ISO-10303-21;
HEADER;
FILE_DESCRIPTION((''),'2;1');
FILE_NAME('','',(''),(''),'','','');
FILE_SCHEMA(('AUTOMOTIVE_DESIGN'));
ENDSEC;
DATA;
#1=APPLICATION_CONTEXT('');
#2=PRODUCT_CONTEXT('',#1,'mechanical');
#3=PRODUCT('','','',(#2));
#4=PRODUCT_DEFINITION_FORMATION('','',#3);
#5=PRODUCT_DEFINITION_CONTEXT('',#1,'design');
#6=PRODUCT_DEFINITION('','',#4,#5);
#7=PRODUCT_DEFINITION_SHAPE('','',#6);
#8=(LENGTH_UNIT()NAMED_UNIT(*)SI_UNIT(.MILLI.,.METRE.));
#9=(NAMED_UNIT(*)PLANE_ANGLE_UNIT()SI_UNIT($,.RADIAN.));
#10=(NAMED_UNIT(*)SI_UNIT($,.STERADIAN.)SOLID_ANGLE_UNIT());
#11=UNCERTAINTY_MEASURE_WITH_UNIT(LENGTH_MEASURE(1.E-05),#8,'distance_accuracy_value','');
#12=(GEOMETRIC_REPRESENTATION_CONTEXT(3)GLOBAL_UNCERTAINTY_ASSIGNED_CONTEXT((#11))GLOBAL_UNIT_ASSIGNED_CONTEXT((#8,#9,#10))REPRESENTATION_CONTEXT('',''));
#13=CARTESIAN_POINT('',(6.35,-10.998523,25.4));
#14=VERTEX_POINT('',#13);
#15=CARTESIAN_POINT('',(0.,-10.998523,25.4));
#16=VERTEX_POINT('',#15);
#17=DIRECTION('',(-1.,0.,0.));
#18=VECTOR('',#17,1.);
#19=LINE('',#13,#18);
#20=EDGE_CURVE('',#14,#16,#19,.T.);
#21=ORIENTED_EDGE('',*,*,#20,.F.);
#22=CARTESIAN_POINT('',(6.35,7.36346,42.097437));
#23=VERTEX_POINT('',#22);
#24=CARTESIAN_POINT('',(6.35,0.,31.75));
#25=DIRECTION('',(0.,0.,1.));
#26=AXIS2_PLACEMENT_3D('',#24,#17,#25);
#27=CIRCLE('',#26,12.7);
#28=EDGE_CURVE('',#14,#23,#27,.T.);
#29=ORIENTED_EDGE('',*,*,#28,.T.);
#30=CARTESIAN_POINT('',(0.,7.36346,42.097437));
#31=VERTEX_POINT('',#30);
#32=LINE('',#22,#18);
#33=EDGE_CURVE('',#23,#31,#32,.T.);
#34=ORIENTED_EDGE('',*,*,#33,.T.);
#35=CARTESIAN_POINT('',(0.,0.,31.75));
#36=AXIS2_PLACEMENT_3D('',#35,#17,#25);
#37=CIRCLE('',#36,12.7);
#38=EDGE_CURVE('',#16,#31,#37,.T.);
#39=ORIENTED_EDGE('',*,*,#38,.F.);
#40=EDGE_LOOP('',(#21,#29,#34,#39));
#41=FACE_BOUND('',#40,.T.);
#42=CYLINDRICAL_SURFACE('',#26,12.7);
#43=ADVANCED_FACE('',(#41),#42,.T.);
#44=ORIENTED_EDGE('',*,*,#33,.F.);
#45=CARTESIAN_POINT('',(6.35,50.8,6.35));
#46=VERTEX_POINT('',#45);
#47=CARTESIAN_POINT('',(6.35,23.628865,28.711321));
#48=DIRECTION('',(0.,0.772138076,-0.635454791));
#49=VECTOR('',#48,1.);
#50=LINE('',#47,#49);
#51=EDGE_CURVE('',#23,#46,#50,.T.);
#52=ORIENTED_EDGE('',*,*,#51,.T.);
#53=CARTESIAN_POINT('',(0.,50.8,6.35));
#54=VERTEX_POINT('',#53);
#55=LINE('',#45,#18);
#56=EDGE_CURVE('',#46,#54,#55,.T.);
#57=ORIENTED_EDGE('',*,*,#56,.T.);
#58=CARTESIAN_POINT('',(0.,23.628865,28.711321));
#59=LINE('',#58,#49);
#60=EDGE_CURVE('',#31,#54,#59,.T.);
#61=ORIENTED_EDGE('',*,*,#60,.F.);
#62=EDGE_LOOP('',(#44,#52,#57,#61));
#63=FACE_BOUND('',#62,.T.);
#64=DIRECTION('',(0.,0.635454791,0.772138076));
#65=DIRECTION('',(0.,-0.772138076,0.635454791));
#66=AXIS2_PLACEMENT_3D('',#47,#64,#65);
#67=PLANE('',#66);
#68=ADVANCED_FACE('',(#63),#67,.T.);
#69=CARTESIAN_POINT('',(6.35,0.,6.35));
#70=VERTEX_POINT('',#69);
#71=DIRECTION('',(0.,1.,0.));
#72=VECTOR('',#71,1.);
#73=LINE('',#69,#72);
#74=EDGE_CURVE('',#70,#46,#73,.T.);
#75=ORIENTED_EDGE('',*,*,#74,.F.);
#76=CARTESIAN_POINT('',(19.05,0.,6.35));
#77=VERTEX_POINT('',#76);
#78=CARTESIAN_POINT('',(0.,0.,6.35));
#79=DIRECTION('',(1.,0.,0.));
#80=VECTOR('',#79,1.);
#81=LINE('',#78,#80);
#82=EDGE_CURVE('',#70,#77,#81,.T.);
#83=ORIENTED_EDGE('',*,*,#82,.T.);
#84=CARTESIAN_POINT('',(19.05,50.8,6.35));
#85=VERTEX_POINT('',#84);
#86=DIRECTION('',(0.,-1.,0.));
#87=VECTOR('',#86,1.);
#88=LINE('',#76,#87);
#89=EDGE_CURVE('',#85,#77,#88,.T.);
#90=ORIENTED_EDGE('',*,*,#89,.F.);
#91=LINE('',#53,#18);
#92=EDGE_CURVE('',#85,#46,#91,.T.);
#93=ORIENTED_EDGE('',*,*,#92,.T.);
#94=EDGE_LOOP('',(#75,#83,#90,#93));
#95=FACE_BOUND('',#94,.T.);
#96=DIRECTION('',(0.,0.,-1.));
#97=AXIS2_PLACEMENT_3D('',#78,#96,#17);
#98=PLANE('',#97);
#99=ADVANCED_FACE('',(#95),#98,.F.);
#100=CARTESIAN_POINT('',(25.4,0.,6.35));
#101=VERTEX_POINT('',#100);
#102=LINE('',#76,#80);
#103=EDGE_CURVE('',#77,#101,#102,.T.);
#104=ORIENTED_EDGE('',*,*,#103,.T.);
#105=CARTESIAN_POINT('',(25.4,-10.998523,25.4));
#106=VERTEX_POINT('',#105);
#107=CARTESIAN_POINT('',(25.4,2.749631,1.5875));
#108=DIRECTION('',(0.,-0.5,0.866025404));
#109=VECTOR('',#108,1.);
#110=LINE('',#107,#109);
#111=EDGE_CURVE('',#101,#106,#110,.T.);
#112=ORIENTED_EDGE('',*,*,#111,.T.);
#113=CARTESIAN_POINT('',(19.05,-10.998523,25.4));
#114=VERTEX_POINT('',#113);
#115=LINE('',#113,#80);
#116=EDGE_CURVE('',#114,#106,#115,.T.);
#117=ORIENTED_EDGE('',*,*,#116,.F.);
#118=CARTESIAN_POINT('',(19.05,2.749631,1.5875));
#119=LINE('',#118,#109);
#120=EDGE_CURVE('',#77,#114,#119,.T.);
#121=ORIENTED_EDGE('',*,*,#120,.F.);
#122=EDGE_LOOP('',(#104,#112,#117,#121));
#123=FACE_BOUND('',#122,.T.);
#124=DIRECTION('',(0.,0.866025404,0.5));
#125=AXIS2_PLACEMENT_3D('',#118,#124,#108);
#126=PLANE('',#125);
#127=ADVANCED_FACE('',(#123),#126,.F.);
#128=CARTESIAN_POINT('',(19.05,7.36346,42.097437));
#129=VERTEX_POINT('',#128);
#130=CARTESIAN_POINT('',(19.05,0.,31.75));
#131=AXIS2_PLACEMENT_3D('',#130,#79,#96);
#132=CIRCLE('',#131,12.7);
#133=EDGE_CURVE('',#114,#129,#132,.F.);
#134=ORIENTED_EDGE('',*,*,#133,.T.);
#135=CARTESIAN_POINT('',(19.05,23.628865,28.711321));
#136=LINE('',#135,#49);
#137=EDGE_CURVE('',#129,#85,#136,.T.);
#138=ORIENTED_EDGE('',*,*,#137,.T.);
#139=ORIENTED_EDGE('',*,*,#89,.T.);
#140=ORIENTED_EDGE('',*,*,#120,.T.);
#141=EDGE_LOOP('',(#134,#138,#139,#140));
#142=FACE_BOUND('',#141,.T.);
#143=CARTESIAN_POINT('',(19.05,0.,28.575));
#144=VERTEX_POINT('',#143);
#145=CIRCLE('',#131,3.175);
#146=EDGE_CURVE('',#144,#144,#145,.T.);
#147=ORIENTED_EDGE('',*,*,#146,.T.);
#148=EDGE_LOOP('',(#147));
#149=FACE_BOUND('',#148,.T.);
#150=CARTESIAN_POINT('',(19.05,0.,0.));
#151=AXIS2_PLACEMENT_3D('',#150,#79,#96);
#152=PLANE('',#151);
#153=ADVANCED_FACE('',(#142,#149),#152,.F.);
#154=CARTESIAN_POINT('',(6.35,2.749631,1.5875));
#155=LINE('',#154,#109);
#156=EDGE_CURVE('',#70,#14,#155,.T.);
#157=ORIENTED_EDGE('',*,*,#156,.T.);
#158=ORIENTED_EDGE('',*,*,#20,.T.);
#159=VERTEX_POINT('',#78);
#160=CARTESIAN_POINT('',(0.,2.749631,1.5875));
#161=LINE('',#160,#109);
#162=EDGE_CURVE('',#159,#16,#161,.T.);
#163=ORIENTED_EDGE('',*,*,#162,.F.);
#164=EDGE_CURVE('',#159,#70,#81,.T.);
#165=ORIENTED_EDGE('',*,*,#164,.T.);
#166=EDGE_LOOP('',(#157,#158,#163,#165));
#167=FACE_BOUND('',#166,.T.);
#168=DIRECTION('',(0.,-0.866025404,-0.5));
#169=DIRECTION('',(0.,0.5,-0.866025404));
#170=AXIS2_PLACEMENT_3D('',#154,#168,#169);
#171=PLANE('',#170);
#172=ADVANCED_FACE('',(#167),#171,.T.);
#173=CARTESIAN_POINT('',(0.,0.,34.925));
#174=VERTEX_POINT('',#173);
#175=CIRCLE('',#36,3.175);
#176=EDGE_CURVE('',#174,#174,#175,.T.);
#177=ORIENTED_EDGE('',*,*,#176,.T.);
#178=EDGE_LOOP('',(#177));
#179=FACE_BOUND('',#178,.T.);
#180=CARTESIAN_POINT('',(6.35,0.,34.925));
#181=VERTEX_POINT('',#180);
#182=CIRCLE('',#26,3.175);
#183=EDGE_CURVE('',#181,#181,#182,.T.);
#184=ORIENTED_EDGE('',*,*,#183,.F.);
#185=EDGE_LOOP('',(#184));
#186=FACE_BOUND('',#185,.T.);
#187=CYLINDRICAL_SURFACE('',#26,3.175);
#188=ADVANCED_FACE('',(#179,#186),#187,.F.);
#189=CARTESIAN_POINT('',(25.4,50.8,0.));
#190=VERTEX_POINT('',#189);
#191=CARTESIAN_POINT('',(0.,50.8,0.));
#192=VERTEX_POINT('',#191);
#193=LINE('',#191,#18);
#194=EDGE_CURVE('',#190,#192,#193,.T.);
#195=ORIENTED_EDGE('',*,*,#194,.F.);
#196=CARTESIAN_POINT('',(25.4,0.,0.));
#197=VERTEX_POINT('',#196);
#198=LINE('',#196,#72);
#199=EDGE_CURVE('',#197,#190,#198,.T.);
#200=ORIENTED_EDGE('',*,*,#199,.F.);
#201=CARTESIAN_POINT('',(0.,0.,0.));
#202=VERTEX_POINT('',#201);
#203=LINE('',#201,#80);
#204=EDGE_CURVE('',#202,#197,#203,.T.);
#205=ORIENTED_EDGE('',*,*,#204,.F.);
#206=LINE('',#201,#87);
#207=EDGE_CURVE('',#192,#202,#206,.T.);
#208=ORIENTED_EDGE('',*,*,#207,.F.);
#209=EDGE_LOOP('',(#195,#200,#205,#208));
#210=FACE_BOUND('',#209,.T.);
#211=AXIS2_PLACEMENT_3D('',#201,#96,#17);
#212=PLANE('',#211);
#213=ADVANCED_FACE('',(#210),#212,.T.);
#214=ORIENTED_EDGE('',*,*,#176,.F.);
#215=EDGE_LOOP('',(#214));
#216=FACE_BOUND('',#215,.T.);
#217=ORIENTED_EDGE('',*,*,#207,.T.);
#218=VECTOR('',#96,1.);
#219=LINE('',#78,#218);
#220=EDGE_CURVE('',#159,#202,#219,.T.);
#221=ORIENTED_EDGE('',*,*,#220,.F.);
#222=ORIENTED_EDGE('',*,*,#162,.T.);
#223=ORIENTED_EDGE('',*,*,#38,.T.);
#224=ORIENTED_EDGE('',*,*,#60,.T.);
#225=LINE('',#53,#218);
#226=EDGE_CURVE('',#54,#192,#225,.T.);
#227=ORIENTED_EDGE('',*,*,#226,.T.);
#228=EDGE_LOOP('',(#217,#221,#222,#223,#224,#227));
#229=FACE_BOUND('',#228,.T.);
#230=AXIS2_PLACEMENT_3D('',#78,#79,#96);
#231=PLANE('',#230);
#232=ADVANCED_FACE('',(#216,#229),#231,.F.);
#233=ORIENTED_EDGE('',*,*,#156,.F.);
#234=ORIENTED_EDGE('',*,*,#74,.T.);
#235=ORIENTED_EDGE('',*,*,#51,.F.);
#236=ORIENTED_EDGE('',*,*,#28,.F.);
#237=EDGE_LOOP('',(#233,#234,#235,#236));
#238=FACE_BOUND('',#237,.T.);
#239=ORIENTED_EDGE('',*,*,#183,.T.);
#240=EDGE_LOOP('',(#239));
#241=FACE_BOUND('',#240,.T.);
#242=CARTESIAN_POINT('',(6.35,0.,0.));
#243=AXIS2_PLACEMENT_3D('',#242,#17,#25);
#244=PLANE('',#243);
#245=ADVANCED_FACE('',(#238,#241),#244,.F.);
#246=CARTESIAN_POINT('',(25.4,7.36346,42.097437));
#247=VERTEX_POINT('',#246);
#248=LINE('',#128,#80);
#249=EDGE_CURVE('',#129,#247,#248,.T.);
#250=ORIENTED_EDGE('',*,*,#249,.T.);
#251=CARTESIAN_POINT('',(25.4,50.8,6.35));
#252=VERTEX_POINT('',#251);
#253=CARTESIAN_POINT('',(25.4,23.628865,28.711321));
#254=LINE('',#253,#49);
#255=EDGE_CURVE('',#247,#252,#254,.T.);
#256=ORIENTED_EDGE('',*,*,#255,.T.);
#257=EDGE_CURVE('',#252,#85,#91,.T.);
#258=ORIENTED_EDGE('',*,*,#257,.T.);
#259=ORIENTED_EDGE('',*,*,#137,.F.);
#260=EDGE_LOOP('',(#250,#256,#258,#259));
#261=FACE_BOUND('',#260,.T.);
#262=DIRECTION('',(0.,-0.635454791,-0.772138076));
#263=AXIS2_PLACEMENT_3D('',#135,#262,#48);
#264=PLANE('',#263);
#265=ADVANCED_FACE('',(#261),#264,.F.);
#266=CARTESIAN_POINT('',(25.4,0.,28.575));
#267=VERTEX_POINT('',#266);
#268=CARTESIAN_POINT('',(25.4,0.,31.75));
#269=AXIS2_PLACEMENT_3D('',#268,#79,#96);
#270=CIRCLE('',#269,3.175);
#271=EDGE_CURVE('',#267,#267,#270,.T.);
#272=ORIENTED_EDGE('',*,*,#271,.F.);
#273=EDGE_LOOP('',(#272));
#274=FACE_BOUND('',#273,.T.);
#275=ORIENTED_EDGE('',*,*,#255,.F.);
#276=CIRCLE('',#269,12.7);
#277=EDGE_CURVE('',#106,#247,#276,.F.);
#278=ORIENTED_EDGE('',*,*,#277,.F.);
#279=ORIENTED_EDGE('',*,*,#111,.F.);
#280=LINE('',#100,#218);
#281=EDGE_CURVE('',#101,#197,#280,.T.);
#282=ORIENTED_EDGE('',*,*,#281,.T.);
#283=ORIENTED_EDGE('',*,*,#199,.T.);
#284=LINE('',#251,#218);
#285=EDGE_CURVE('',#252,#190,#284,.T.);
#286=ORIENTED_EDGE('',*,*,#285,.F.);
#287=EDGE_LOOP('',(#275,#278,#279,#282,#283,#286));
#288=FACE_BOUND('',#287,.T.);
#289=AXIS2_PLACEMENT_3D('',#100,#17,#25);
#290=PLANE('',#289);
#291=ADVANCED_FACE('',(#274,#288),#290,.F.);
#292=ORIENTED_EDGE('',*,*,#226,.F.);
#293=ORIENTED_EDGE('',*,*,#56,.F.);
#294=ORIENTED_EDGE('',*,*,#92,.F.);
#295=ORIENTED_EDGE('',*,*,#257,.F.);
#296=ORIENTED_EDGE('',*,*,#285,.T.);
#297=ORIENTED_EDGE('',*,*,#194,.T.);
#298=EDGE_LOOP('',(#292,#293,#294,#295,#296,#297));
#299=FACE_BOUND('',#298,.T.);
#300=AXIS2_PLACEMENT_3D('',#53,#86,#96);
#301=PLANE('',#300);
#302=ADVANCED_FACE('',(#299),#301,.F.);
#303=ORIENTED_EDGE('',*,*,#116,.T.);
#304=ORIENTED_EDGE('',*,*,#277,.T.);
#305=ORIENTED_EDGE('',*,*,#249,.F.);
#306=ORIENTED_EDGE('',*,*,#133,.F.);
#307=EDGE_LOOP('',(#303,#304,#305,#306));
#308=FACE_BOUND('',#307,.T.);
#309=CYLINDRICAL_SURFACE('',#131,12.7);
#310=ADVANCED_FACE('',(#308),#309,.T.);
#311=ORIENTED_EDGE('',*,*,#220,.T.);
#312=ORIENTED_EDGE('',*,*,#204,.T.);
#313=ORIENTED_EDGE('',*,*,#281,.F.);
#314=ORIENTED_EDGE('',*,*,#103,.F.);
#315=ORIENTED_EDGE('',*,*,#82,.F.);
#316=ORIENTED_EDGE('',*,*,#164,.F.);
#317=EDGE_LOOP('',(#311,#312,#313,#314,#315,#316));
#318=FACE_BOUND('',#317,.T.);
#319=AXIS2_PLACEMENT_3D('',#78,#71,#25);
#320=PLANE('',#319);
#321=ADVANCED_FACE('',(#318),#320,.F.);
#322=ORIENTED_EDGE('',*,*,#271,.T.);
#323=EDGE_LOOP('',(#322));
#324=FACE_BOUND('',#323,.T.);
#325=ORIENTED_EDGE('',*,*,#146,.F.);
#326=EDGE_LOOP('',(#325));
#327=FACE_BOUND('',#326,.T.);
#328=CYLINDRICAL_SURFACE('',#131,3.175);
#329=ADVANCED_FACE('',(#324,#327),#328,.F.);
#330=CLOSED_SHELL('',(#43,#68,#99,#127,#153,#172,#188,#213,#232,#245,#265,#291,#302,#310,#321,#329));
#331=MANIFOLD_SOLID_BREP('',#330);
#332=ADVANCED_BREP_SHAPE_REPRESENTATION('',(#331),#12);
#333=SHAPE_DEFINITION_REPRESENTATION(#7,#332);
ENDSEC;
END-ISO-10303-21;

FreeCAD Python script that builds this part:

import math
import FreeCAD as App
import Part
import Sketcher

V = App.Vector
Q = App.Units.Quantity

doc = App.newDocument("Part")
body = doc.addObject("PartDesign::Body", "Body")

# Sketch on XY plane
sketch1 = body.newObject("Sketcher::SketchObject", "Sketch")
sketch1.AttachmentSupport = (doc.getObject("XY_Plane"), [""])
sketch1.MapMode = "FlatFace"
sketch1.addGeometry(Part.LineSegment(V(0, 50.8, 0), V(0, 0, 0)), False)
sketch1.addGeometry(Part.LineSegment(V(0, 0, 0), V(25.4, 0, 0)), False)
sketch1.addGeometry(Part.LineSegment(V(25.4, 0, 0), V(25.4, 50.8, 0)), False)
sketch1.addGeometry(Part.LineSegment(V(25.4, 50.8, 0), V(0, 50.8, 0)), False)
sketch1.addConstraint(Sketcher.Constraint("Coincident", 0, 2, 1, 1))
sketch1.addConstraint(Sketcher.Constraint("Coincident", 1, 2, 2, 1))
sketch1.addConstraint(Sketcher.Constraint("Coincident", 2, 2, 3, 1))
sketch1.addConstraint(Sketcher.Constraint("Coincident", 3, 2, 0, 1))
sketch1.addConstraint(Sketcher.Constraint("Vertical", 0))
sketch1.addConstraint(Sketcher.Constraint("Horizontal", 1))
sketch1.addConstraint(Sketcher.Constraint("Vertical", 2))
sketch1.addConstraint(Sketcher.Constraint("Horizontal", 3))
sketch1.addConstraint(Sketcher.Constraint("Coincident", 0, 2, -1, 1))
sketch1.addConstraint(Sketcher.Constraint("DistanceX", 1, 1, 1, 2, Q("1 in")))
sketch1.addConstraint(Sketcher.Constraint("DistanceY", 0, 2, 0, 1, Q("2 in")))
pad1 = body.newObject("PartDesign::Pad", "Pad")
pad1.Profile = sketch1
pad1.Length = Q("0.25 in")

# Sketch on YZ plane
sketch2 = body.newObject("Sketcher::SketchObject", "Sketch001")
sketch2.AttachmentSupport = (doc.getObject("YZ_Plane"), [""])
sketch2.MapMode = "FlatFace"
sketch2.AttachmentOffset = App.Placement(V(0, 0, 1 * 25.4), App.Rotation())
sketch2.addGeometry(Part.LineSegment(V(-10.998523, 25.4, 0), V(0, 6.35, 0)), False)
sketch2.addGeometry(Part.LineSegment(V(0, 6.35, 0), V(50.8, 6.35, 0)), False)
sketch2.addGeometry(Part.LineSegment(V(50.8, 6.35, 0), V(7.36346, 42.097437, 0)), False)
sketch2.addGeometry(Part.ArcOfCircle(Part.Circle(V(0, 31.75, 0), V(0, 0, 1), 12.7), math.radians(54.563521), math.radians(210)), False)
sketch2.addGeometry(Part.Circle(V(0, 31.75, 0), V(0, 0, 1), 3.175), False)
sketch2.addConstraint(Sketcher.Constraint("Coincident", 0, 2, 1, 1))
sketch2.addConstraint(Sketcher.Constraint("Coincident", 1, 2, 2, 1))
sketch2.addConstraint(Sketcher.Constraint("Coincident", 2, 2, 3, 1))
sketch2.addConstraint(Sketcher.Constraint("Tangent", 3, 2, 0, 1))
sketch2.addConstraint(Sketcher.Constraint("Horizontal", 1))
sketch2.addConstraint(Sketcher.Constraint("Coincident", 4, 3, 3, 3))
sketch2.addConstraint(Sketcher.Constraint("PointOnObject", 3, 3, -2))
sketch2.addConstraint(Sketcher.Constraint("PointOnObject", 0, 2, -2))
sketch2.addConstraint(Sketcher.Constraint("Radius", 3, Q("0.5 in")))
sketch2.addConstraint(Sketcher.Constraint("Diameter", 4, Q("0.25 in")))
sketch2.addConstraint(Sketcher.Constraint("DistanceX", 1, 1, 1, 2, Q("2 in")))
sketch2.addConstraint(Sketcher.Constraint("DistanceY", -1, 1, 3, 2, Q("1 in")))
sketch2.addConstraint(Sketcher.Constraint("Angle", 0, Q("-60 deg")))
sketch2.addConstraint(Sketcher.Constraint("DistanceX", -1, 1, 2, 2, Q("0.2899 in")))
pad2 = body.newObject("PartDesign::Pad", "Pad001")
pad2.Profile = sketch2
pad2.Length = Q("0.25 in")
pad2.Reversed = True

# Sketch on YZ plane
sketch3 = body.newObject("Sketcher::SketchObject", "Sketch002")
sketch3.AttachmentSupport = (doc.getObject("YZ_Plane"), [""])
sketch3.MapMode = "FlatFace"
sketch3.addGeometry(Part.LineSegment(V(0, 6.35, 0), V(-10.998523, 25.4, 0)), False)
sketch3.addGeometry(Part.ArcOfCircle(Part.Circle(V(0, 31.75, 0), V(0, 0, 1), 12.7), math.radians(54.563521), math.radians(210)), False)
sketch3.addGeometry(Part.LineSegment(V(7.36346, 42.097437, 0), V(50.8, 6.35, 0)), False)
sketch3.addGeometry(Part.LineSegment(V(50.8, 6.35, 0), V(0, 6.35, 0)), False)
sketch3.addGeometry(Part.Circle(V(0, 31.75, 0), V(0, 0, 1), 3.175), False)
sketch3.addConstraint(Sketcher.Constraint("Tangent", 0, 2, 1, 2))
sketch3.addConstraint(Sketcher.Constraint("Coincident", 1, 1, 2, 1))
sketch3.addConstraint(Sketcher.Constraint("Coincident", 2, 2, 3, 1))
sketch3.addConstraint(Sketcher.Constraint("Coincident", 3, 2, 0, 1))
sketch3.addConstraint(Sketcher.Constraint("Horizontal", 3))
sketch3.addConstraint(Sketcher.Constraint("Coincident", 4, 3, 1, 3))
sketch3.addConstraint(Sketcher.Constraint("PointOnObject", 1, 3, -2))
sketch3.addConstraint(Sketcher.Constraint("PointOnObject", 3, 2, -2))
sketch3.addConstraint(Sketcher.Constraint("Radius", 1, Q("0.5 in")))
sketch3.addConstraint(Sketcher.Constraint("Diameter", 4, Q("0.25 in")))
sketch3.addConstraint(Sketcher.Constraint("DistanceX", 3, 2, 3, 1, Q("2 in")))
sketch3.addConstraint(Sketcher.Constraint("DistanceY", -1, 1, 0, 2, Q("1 in")))
sketch3.addConstraint(Sketcher.Constraint("Angle", 0, Q("120 deg")))
sketch3.addConstraint(Sketcher.Constraint("DistanceX", -1, 1, 1, 1, Q("0.2899 in")))
pad3 = body.newObject("PartDesign::Pad", "Pad002")
pad3.Profile = sketch3
pad3.Length = Q("0.25 in")

doc.recompute()
